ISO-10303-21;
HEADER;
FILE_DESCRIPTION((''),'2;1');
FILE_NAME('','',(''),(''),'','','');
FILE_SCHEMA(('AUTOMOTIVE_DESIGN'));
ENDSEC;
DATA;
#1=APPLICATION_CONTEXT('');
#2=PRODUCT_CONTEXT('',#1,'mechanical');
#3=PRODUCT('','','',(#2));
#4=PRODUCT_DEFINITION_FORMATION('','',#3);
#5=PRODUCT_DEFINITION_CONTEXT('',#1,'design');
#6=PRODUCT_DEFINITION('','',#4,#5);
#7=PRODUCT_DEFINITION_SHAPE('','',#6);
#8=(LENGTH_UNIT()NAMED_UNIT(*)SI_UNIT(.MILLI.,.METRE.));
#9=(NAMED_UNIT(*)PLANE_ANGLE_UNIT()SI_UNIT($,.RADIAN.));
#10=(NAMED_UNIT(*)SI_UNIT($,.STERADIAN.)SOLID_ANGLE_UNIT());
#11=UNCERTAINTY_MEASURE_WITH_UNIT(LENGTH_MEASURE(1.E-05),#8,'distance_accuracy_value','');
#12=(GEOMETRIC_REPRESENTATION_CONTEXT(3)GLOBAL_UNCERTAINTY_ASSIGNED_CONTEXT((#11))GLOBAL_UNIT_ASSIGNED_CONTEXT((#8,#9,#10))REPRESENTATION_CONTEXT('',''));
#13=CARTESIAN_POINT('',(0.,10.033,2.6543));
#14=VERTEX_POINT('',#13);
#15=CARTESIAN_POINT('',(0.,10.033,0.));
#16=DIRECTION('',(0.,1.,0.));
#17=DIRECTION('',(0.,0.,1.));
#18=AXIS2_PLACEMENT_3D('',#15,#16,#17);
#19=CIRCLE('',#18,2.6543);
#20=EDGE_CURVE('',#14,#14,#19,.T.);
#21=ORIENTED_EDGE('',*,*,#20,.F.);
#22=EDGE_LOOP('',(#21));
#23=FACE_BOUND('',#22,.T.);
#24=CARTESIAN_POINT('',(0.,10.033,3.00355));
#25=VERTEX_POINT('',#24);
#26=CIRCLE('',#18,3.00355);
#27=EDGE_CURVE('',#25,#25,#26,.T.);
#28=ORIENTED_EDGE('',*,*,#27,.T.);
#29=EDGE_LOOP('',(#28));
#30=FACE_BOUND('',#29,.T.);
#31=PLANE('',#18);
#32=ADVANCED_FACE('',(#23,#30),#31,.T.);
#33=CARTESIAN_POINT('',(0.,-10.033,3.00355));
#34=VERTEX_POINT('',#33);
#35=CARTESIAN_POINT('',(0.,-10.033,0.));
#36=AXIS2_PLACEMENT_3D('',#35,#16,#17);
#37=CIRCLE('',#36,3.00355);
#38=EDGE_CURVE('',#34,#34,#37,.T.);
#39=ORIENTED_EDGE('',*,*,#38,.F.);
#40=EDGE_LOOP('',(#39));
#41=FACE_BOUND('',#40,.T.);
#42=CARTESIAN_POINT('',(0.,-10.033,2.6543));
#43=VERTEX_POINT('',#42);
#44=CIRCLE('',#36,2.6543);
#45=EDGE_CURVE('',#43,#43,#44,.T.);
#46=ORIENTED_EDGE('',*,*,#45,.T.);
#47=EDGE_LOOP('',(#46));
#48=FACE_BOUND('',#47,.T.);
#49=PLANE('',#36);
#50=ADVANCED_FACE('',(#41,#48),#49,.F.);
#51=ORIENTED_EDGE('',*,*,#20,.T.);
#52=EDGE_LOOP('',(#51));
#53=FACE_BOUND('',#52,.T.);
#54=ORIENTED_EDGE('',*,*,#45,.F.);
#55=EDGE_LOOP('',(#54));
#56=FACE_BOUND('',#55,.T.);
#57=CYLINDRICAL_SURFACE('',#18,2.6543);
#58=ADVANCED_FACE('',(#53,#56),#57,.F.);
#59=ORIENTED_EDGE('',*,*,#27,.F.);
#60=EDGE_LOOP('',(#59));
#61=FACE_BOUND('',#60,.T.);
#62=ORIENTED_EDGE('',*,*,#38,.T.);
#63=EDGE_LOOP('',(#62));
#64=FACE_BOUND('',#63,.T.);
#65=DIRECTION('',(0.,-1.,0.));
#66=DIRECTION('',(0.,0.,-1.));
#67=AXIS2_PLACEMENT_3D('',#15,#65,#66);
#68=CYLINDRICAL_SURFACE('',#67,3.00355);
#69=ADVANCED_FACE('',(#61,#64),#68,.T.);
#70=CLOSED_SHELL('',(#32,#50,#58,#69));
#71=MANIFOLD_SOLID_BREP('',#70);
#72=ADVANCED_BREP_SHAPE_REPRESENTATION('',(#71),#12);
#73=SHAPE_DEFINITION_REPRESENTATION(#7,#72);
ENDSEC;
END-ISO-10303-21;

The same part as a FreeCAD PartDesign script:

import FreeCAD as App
import Part
import Sketcher
Q = App.Units.Quantity

doc = App.newDocument("Part")
params = doc.addObject("Spreadsheet::Sheet", "Params")
for row, (alias, value) in enumerate([
    ("pad1_length", "0.79 in"),
    ("sketch2_diameter", "0.209 in"),
    ("hole_diameter", "0.209 in"),
], start=1):
    params.set(f"A{row}", alias)
    params.set(f"B{row}", "=" + value)
    params.setAlias(f"B{row}", alias)

body = doc.addObject("PartDesign::Body", "Body")

sketch1 = doc.addObject("Sketcher::SketchObject", "Sketch")
body.addObject(sketch1)
sketch1.AttachmentSupport = (doc.XZ_Plane, [""])
sketch1.MapMode = "FlatFace"
sketch1.addGeometry(Part.Circle(App.Vector(0, 0, 0), App.Vector(0, 0, 1), 3), False)
sketch1.addConstraint([
    Sketcher.Constraint("Coincident", 0, 3, -1, 1),
    Sketcher.Constraint("Diameter", 0, Q("0.2365 in")),
])
pad1 = doc.addObject("PartDesign::Pad", "Pad")
body.addObject(pad1)
pad1.Profile = sketch1
pad1.setExpression("Length", "Params.pad1_length")
pad1.Midplane = True

sketch2 = doc.addObject("Sketcher::SketchObject", "Sketch001")
body.addObject(sketch2)
sketch2.AttachmentSupport = (doc.XZ_Plane, [""])
sketch2.MapMode = "FlatFace"
sketch2.AttachmentOffset = App.Placement(App.Vector(0, 0, -0.395 * 25.4), App.Rotation())
sketch2.addGeometry(Part.Circle(App.Vector(0, 0, 0), App.Vector(0, 0, 1), 2.7), False)
sketch2.addConstraint([
    Sketcher.Constraint("Coincident", 0, 3, -1, 1),
    Sketcher.Constraint("Diameter", 0, Q("0.209 in")),
])
sketch2.setExpression("Constraints[1]", "Params.sketch2_diameter")
doc.recompute()
hole = doc.addObject("PartDesign::Hole", "Hole")
body.addObject(hole)
hole.Profile = sketch2
hole.ThreadType = "None"
hole.setExpression("Diameter", "Params.hole_diameter")
hole.DepthType = "ThroughAll"
hole.Reversed = True

doc.recompute()
